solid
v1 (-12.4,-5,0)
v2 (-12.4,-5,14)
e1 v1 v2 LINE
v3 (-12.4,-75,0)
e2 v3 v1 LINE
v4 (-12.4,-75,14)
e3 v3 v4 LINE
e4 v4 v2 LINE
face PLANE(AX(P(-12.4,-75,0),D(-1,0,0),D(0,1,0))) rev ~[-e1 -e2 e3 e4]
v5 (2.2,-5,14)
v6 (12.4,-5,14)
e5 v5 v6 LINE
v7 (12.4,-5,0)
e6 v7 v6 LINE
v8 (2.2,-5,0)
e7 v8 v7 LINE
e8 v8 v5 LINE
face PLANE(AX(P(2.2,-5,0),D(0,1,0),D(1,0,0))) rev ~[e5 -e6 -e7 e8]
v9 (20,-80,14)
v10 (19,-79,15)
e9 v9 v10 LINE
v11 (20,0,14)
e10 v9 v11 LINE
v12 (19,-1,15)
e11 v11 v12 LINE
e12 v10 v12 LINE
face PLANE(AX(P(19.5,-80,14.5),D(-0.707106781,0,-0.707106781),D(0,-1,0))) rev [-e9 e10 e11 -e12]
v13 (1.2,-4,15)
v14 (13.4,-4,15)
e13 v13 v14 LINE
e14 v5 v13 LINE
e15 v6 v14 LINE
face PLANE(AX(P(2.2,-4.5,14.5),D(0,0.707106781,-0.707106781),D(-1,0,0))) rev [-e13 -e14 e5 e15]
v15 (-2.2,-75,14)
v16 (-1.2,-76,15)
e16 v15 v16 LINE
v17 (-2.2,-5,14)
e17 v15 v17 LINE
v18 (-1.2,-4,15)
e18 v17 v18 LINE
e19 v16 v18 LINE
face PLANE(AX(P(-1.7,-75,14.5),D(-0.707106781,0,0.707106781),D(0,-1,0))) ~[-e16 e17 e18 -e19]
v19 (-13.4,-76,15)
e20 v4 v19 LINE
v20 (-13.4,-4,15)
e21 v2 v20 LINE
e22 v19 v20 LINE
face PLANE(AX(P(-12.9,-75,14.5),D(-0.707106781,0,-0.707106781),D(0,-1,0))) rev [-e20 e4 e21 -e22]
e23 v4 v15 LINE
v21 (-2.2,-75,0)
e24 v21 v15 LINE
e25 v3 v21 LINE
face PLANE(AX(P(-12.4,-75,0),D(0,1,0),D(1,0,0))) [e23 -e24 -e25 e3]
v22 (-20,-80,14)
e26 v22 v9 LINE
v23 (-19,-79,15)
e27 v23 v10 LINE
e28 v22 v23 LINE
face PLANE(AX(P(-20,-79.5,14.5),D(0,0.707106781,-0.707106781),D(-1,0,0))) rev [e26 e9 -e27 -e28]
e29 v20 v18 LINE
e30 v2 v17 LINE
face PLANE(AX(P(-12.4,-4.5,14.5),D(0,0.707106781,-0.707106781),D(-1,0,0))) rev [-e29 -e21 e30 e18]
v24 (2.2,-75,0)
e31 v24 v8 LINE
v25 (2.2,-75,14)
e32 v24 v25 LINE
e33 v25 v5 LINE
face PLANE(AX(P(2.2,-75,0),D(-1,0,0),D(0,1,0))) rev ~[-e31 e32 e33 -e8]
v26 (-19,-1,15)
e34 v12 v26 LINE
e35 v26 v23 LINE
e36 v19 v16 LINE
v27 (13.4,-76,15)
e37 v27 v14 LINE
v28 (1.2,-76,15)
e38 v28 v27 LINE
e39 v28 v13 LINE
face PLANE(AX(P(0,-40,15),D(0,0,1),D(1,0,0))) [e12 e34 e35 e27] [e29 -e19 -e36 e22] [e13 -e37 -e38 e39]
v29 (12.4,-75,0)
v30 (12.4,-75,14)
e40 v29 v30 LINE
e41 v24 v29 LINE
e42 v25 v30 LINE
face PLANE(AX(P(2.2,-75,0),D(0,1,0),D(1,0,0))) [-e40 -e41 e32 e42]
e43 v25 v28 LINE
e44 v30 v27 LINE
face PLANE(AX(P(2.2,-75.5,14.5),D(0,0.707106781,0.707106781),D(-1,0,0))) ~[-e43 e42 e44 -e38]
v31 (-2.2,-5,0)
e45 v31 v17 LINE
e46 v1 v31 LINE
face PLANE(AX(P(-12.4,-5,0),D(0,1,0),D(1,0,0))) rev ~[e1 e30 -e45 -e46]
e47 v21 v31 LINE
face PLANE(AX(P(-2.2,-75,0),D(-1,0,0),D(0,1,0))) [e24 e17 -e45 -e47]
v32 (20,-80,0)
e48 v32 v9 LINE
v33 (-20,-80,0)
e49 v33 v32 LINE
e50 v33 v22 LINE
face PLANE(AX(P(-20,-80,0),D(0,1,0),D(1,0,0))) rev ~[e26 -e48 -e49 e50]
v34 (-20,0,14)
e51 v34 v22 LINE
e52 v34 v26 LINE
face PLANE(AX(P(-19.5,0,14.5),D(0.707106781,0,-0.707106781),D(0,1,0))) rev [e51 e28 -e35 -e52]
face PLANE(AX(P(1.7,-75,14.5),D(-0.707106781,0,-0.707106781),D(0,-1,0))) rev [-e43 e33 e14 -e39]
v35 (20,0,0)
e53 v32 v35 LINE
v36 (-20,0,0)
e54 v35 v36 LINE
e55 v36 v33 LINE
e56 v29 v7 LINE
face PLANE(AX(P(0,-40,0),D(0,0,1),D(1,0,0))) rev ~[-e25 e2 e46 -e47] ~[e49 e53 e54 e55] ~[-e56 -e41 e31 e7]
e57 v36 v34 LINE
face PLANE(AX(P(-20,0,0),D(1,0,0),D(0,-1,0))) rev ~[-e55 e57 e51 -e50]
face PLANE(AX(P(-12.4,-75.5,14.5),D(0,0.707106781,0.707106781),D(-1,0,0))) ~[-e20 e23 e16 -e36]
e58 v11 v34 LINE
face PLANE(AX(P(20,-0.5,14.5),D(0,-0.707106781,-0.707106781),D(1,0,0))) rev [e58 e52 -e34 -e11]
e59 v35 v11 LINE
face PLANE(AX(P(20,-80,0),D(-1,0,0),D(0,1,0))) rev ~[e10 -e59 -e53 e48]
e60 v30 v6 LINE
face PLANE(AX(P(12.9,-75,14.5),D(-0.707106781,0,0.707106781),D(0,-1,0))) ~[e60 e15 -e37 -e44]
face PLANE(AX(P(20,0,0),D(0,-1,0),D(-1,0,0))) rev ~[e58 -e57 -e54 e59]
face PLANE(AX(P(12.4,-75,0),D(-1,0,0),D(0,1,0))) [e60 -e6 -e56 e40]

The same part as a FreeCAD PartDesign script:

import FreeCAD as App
import Part
import Sketcher
Q = App.Units.Quantity


def edges_at(feature, points):
    """Names of the edges that pass closest to the given points."""
    edges = feature.Shape.Edges
    near = lambda p: min(range(len(edges)), key=lambda i: edges[i].distToShape(Part.Vertex(*p))[0])
    return sorted({f"Edge{near(p) + 1}" for p in points})


def add_polygon(sketch, points):
    """Adds a closed chain of lines whose ends are joined by coincident constraints."""
    first, n = sketch.GeometryCount, len(points)
    for a, b in zip(points, points[1:] + points[:1]):
        sketch.addGeometry(Part.LineSegment(App.Vector(*a, 0), App.Vector(*b, 0)), False)
    for i in range(n):
        sketch.addConstraint(Sketcher.Constraint("Coincident", first + i, 2, first + (i + 1) % n, 1))

doc = App.newDocument("Part")
body = doc.addObject("PartDesign::Body", "Body")

sketch1 = body.newObject("Sketcher::SketchObject", "Sketch")
sketch1.AttachmentSupport = (doc.getObject("XY_Plane"), [""])
sketch1.MapMode = "FlatFace"
add_polygon(sketch1, [(20, 0), (-20, 0), (-20, -80), (20, -80)])
add_polygon(sketch1, [(-2, -75), (-12, -75), (-12, -5), (-2, -5)])
add_polygon(sketch1, [(12, -75), (2, -75), (2, -5), (12, -5)])
sketch1.addConstraint(Sketcher.Constraint("Horizontal", 0))
sketch1.addConstraint(Sketcher.Constraint("Vertical", 1))
sketch1.addConstraint(Sketcher.Constraint("Horizontal", 2))
sketch1.addConstraint(Sketcher.Constraint("Vertical", 3))
sketch1.addConstraint(Sketcher.Constraint("Horizontal", 4))
sketch1.addConstraint(Sketcher.Constraint("Vertical", 5))
sketch1.addConstraint(Sketcher.Constraint("Horizontal", 6))
sketch1.addConstraint(Sketcher.Constraint("Vertical", 7))
sketch1.addConstraint(Sketcher.Constraint("Horizontal", 8))
sketch1.addConstraint(Sketcher.Constraint("Vertical", 9))
sketch1.addConstraint(Sketcher.Constraint("Horizontal", 10))
sketch1.addConstraint(Sketcher.Constraint("Vertical", 11))
sketch1.addConstraint(Sketcher.Constraint("Symmetric", 0, 2, 3, 2, -1, 1))
sketch1.addConstraint(Sketcher.Constraint("Symmetric", 7, 2, 8, 2, -2))
sketch1.addConstraint(Sketcher.Constraint("Symmetric", 5, 2, 10, 2, -2))
sketch1.addConstraint(Sketcher.Constraint("DistanceX", 0, 2, 0, 1, Q("40 mm")))
sketch1.addConstraint(Sketcher.Constraint("DistanceY", 1, 2, 1, 1, Q("80 mm")))
sketch1.addConstraint(Sketcher.Constraint("DistanceY", 5, 1, 5, 2, Q("70 mm")))
sketch1.addConstraint(Sketcher.Constraint("DistanceX", 4, 2, 4, 1, Q("10.2 mm")))
sketch1.addConstraint(Sketcher.Constraint("DistanceY", 4, 2, -1, 1, Q("75 mm")))
sketch1.addConstraint(Sketcher.Constraint("DistanceX", 4, 2, -1, 1, Q("12.4 mm")))
pad1 = body.newObject("PartDesign::Pad", "Pad")
pad1.Profile = sketch1
pad1.Length = 15
doc.recompute()

chamfer = body.newObject("PartDesign::Chamfer", "Chamfer")
chamfer.Base = (pad1, edges_at(pad1, [
    (0, 0, 15),
    (-20, -40, 15),
    (0, -80, 15),
    (20, -40, 15),
    (-7.3, -75, 15),
    (-12.4, -40, 15),
    (-7.3, -5, 15),
    (-2.2, -40, 15),
    (7.3, -5, 15),
    (12.4, -40, 15),
    (7.3, -75, 15),
    (2.2, -40, 15),
]))
chamfer.Size = 1

doc.recompute()
